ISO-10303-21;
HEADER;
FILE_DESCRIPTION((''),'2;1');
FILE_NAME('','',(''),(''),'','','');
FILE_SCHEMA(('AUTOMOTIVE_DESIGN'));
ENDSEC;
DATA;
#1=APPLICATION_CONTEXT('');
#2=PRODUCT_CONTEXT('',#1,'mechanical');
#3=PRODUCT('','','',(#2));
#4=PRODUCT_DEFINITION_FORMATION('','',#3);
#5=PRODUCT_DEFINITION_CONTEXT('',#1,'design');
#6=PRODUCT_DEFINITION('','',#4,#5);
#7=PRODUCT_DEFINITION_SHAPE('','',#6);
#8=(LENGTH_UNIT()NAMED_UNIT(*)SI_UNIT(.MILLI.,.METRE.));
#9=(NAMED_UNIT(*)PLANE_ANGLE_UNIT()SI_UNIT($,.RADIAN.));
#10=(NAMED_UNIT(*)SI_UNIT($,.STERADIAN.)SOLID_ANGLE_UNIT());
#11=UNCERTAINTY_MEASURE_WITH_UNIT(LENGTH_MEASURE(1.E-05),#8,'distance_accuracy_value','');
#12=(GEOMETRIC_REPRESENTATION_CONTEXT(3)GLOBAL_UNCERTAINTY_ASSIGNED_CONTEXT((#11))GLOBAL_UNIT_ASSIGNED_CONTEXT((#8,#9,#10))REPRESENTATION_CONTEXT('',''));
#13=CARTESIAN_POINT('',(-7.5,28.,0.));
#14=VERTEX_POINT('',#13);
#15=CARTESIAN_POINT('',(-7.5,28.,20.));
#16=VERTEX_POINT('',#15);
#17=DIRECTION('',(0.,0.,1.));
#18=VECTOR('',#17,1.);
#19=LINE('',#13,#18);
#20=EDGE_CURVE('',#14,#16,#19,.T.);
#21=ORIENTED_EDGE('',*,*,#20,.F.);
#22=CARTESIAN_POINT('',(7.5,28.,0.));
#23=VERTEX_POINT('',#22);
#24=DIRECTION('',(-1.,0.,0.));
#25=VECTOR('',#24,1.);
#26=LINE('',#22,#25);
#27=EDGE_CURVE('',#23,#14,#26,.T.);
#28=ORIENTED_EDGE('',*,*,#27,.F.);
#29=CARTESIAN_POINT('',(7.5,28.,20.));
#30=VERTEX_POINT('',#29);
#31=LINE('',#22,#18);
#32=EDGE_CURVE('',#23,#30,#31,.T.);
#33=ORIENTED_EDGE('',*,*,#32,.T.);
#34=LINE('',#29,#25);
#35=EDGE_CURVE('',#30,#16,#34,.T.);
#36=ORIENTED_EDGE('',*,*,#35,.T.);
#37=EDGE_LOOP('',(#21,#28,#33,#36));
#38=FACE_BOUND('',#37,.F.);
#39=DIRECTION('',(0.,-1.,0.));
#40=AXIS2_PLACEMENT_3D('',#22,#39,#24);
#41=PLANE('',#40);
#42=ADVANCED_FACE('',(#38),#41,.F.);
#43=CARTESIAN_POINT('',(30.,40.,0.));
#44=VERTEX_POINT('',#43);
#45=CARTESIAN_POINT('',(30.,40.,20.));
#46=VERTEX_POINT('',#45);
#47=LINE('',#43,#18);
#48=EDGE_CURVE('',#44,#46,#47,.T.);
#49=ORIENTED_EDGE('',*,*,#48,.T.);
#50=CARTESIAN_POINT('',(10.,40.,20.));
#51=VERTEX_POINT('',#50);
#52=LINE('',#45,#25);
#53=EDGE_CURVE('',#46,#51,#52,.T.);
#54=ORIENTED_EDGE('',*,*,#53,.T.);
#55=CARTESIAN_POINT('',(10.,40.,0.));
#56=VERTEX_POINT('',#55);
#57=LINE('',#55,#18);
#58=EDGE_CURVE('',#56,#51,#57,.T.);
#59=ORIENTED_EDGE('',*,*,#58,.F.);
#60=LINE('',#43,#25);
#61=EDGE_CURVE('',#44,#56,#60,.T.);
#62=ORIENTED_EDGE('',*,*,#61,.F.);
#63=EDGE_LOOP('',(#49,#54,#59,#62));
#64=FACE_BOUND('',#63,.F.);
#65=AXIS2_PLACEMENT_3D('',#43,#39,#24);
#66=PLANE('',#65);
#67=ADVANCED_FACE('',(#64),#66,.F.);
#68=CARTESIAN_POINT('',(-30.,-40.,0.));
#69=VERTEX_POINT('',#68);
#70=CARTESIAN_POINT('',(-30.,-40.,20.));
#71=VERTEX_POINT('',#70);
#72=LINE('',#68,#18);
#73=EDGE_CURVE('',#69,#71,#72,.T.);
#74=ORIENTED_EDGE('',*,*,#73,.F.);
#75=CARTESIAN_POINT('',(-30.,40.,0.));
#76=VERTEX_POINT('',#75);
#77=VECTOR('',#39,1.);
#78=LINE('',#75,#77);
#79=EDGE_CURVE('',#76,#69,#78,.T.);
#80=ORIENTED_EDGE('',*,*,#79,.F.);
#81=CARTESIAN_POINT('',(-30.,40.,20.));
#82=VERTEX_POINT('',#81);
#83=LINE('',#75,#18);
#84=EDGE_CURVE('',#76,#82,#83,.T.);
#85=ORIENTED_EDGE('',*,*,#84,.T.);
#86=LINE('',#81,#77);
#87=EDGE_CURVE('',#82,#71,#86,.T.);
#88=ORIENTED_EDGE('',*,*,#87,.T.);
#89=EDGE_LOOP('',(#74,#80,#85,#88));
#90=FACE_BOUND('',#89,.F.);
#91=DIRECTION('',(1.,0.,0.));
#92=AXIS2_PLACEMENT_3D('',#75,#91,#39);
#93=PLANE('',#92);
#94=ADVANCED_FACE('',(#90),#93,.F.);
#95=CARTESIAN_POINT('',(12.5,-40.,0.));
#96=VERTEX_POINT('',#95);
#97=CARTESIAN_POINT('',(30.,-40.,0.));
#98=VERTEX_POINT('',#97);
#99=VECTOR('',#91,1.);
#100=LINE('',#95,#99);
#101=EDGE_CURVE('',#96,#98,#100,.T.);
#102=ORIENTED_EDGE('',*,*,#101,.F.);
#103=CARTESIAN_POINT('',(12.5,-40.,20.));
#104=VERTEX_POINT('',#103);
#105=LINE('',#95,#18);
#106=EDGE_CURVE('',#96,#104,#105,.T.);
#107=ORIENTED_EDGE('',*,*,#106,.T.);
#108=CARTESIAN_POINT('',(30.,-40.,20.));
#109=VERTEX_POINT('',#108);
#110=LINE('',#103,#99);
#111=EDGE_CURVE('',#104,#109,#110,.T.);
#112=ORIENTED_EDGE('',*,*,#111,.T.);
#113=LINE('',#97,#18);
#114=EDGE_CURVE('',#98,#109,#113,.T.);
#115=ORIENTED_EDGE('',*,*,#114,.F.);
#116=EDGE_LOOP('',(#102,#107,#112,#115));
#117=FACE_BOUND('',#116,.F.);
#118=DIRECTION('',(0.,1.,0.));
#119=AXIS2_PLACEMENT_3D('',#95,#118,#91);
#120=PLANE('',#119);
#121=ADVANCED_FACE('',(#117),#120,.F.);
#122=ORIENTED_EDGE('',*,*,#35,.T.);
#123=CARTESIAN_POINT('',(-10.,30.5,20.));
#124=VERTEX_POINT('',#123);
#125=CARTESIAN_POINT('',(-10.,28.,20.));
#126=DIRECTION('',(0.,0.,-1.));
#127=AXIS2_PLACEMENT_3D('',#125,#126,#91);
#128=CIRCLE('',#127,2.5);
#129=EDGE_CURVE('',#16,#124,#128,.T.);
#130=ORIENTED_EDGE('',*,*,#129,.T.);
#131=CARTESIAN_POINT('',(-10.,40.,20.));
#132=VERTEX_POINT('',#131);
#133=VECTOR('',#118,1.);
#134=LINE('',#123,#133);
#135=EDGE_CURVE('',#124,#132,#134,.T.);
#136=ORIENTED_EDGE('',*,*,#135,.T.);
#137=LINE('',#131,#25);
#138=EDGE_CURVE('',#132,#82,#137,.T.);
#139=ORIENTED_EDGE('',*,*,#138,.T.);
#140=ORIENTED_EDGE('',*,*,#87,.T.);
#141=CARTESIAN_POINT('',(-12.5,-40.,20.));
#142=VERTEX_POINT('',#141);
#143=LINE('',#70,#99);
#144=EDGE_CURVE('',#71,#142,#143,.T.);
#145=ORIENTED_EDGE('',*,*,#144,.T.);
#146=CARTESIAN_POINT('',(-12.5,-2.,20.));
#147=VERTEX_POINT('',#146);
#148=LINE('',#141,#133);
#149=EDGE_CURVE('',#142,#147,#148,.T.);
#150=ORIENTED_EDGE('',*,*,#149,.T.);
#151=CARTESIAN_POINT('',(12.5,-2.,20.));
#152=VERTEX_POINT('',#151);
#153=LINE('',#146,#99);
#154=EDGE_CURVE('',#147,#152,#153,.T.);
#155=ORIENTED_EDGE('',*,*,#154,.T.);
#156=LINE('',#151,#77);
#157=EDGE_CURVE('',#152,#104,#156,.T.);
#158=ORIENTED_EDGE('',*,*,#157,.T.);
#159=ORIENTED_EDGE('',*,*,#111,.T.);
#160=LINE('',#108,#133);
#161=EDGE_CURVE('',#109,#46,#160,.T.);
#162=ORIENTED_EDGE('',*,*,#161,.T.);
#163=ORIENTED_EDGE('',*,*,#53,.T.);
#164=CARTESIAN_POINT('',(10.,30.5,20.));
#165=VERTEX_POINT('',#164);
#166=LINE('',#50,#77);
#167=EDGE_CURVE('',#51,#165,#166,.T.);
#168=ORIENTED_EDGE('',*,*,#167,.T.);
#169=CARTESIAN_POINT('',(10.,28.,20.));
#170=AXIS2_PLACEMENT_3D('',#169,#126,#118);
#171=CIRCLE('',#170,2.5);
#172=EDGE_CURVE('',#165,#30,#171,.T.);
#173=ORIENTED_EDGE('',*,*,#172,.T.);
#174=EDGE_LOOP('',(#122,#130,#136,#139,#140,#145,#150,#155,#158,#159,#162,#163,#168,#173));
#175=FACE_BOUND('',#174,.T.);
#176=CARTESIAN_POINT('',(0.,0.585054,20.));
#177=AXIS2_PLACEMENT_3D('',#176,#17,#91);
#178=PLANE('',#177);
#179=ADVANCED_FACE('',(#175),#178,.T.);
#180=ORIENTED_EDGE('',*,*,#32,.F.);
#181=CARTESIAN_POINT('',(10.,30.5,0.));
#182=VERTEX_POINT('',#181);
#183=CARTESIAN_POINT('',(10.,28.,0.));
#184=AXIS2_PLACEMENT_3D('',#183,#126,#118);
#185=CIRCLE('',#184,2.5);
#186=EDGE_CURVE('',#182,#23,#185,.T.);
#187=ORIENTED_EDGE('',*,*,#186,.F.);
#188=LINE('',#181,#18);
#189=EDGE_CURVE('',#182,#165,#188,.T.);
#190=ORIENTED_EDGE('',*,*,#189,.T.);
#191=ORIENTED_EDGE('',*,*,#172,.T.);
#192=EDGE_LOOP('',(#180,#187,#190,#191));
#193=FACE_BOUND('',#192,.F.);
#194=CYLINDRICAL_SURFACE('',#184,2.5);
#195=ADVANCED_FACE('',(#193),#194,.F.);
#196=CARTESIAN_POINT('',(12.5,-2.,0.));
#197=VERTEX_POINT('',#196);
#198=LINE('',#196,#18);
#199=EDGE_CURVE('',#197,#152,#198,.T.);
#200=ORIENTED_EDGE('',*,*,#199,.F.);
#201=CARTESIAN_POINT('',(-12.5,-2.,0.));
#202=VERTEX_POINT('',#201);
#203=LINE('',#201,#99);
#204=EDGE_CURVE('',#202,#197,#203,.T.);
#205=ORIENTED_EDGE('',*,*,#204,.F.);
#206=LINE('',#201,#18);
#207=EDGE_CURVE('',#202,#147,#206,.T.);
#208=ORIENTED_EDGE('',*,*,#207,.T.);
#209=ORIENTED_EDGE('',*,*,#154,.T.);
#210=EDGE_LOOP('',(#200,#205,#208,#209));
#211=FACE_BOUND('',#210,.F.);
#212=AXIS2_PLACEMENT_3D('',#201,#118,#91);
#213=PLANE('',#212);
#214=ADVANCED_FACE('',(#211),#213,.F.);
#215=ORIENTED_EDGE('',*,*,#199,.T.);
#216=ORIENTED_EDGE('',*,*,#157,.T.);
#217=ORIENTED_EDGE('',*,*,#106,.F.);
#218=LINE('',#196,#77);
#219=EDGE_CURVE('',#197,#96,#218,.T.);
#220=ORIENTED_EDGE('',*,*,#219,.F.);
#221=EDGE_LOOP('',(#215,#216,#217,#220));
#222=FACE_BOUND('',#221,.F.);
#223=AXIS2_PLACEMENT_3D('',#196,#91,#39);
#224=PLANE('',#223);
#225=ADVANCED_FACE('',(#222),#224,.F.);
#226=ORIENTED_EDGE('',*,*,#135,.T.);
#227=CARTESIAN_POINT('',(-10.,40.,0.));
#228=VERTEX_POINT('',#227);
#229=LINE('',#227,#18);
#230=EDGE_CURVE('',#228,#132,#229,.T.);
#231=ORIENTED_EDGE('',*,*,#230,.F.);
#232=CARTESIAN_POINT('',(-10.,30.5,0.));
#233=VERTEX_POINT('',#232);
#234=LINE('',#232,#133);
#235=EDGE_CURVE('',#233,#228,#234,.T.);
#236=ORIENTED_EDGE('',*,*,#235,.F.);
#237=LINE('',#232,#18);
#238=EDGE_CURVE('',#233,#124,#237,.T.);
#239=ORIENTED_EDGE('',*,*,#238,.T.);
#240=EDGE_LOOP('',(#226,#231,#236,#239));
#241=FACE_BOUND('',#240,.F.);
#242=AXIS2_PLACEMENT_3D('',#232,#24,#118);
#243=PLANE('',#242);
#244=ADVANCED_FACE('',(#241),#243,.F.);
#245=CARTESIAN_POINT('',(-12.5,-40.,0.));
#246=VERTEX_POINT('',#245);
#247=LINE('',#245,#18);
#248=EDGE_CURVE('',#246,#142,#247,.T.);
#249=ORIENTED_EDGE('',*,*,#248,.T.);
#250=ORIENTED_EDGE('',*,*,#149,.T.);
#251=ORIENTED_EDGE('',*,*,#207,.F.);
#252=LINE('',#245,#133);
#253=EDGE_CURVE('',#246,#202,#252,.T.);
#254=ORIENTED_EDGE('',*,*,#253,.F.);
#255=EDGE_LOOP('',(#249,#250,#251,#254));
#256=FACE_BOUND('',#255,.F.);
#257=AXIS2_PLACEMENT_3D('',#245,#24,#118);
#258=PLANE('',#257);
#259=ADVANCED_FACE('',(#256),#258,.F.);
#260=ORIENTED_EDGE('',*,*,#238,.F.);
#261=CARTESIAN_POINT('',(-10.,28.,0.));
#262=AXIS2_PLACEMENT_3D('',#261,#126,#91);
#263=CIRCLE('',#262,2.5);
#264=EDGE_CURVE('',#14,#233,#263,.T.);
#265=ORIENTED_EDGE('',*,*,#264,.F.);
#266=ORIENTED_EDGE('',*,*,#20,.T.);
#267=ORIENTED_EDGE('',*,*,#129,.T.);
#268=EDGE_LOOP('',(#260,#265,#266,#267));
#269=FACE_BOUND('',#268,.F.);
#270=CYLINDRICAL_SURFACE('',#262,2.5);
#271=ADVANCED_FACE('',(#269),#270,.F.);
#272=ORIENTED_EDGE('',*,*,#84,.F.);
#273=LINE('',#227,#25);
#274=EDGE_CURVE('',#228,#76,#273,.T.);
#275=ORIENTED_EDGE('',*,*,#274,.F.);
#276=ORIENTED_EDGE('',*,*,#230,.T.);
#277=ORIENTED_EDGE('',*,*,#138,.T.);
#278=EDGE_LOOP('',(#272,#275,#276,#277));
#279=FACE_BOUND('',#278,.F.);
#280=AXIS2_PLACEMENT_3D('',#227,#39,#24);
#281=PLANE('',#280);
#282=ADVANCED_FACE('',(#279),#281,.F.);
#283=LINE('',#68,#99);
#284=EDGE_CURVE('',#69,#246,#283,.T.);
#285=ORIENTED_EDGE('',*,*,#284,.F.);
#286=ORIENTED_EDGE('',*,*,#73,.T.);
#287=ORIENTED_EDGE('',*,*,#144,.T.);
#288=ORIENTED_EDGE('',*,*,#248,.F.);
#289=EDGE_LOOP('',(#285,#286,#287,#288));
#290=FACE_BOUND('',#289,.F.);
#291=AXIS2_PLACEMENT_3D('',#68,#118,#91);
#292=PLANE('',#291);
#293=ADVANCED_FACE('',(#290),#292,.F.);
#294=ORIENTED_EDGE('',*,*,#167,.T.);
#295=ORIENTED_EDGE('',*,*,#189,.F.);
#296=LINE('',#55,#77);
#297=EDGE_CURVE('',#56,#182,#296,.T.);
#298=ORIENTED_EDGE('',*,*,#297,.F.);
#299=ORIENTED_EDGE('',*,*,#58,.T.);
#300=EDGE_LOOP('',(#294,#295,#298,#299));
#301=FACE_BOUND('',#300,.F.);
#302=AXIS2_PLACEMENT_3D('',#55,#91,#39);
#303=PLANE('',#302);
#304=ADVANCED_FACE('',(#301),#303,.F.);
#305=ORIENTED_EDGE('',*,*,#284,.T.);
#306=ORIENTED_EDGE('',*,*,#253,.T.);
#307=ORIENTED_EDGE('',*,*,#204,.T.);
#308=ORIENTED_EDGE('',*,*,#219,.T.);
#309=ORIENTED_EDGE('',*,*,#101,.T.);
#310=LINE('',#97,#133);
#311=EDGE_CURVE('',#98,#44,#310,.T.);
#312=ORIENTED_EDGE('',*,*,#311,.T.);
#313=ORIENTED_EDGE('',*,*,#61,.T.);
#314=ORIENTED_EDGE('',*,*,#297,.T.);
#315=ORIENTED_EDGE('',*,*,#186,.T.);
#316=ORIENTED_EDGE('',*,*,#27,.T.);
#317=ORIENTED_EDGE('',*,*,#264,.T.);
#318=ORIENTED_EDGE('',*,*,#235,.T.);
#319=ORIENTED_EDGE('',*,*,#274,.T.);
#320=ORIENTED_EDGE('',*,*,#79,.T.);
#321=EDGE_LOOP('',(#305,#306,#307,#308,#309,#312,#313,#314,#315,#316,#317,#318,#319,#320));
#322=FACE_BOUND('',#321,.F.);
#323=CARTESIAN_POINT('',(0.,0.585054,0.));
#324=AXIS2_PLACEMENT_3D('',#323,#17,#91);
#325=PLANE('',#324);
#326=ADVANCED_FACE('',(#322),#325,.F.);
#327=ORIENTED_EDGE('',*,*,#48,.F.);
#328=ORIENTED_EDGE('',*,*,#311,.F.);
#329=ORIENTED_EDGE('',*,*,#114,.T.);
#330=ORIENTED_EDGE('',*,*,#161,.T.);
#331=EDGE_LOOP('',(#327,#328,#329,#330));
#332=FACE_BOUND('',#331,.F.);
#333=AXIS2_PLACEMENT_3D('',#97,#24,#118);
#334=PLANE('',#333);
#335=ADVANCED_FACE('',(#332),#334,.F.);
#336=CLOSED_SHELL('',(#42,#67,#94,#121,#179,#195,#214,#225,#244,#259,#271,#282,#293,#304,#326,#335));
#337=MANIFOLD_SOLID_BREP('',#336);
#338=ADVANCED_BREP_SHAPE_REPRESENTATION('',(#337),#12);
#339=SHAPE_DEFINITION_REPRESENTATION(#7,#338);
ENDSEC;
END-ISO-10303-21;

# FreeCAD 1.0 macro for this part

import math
import FreeCAD as App
import Part
import Sketcher
from FreeCAD import Vector
Q = App.Units.Quantity

doc = App.newDocument("Part")
body = doc.addObject("PartDesign::Body", "Body")

# Sketch on XY plane
sketch1 = doc.addObject("Sketcher::SketchObject", "Sketch")
body.addObject(sketch1)
sketch1.AttachmentSupport = (doc.XY_Plane, [""])
sketch1.MapMode = "FlatFace"
sketch1.addGeometry([
    Part.LineSegment(Vector(12.5, -40, 0), Vector(30, -40, 0)),  # 0
    Part.LineSegment(Vector(30, -40, 0), Vector(30, 40, 0)),  # 1
    Part.LineSegment(Vector(30, 40, 0), Vector(10, 40, 0)),  # 2
    Part.LineSegment(Vector(10, 40, 0), Vector(10, 30.5, 0)),  # 3
    Part.ArcOfCircle(Part.Circle(Vector(10, 28, 0), Vector(0, 0, 1), 2.5), math.radians(180), math.radians(450)),  # 4
    Part.LineSegment(Vector(7.5, 28, 0), Vector(-7.5, 28, 0)),  # 5
    Part.ArcOfCircle(Part.Circle(Vector(-10, 28, 0), Vector(0, 0, 1), 2.5), math.radians(90), math.radians(360)),  # 6
    Part.LineSegment(Vector(-10, 30.5, 0), Vector(-10, 40, 0)),  # 7
    Part.LineSegment(Vector(-10, 40, 0), Vector(-30, 40, 0)),  # 8
    Part.LineSegment(Vector(-30, 40, 0), Vector(-30, -40, 0)),  # 9
    Part.LineSegment(Vector(-30, -40, 0), Vector(-12.5, -40, 0)),  # 10
    Part.LineSegment(Vector(-12.5, -40, 0), Vector(-12.5, -2, 0)),  # 11
    Part.LineSegment(Vector(-12.5, -2, 0), Vector(12.5, -2, 0)),  # 12
    Part.LineSegment(Vector(12.5, -2, 0), Vector(12.5, -40, 0)),  # 13
], False)
sketch1.addConstraint([
    Sketcher.Constraint("Coincident", 0, 2, 1, 1),
    Sketcher.Constraint("Coincident", 1, 2, 2, 1),
    Sketcher.Constraint("Coincident", 2, 2, 3, 1),
    Sketcher.Constraint("Coincident", 3, 2, 4, 2),
    Sketcher.Constraint("Coincident", 4, 1, 5, 1),
    Sketcher.Constraint("Coincident", 5, 2, 6, 2),
    Sketcher.Constraint("Coincident", 6, 1, 7, 1),
    Sketcher.Constraint("Coincident", 7, 2, 8, 1),
    Sketcher.Constraint("Coincident", 8, 2, 9, 1),
    Sketcher.Constraint("Coincident", 9, 2, 10, 1),
    Sketcher.Constraint("Coincident", 10, 2, 11, 1),
    Sketcher.Constraint("Coincident", 11, 2, 12, 1),
    Sketcher.Constraint("Coincident", 12, 2, 13, 1),
    Sketcher.Constraint("Coincident", 13, 2, 0, 1),
    Sketcher.Constraint("Horizontal", 0),
    Sketcher.Constraint("Vertical", 1),
    Sketcher.Constraint("Horizontal", 2),
    Sketcher.Constraint("Vertical", 3),
    Sketcher.Constraint("Horizontal", 5),
    Sketcher.Constraint("Vertical", 7),
    Sketcher.Constraint("Horizontal", 8),
    Sketcher.Constraint("Vertical", 9),
    Sketcher.Constraint("Horizontal", 10),
    Sketcher.Constraint("Vertical", 11),
    Sketcher.Constraint("Horizontal", 12),
    Sketcher.Constraint("Vertical", 13),
    Sketcher.Constraint("Equal", 4, 6),
    Sketcher.Constraint("Symmetric", 0, 2, 8, 2, -1, 1),
    Sketcher.Constraint("Symmetric", 4, 3, 6, 3, -2),
    Sketcher.Constraint("Symmetric", 2, 2, 7, 2, -2),
    Sketcher.Constraint("Symmetric", 10, 2, 13, 2, -2),
    Sketcher.Constraint("Horizontal", 6, 3, 4, 1),
    Sketcher.Constraint("Vertical", 4, 3, 2, 2),
    Sketcher.Constraint("Radius", 4, Q("2.5 mm")),
    Sketcher.Constraint("DistanceX", 2, 2, 2, 1, Q("20 mm")),
    Sketcher.Constraint("DistanceX", 5, 2, 5, 1, Q("15 mm")),
    Sketcher.Constraint("DistanceX", 12, 1, 12, 2, Q("25 mm")),
    Sketcher.Constraint("DistanceY", 1, 1, 1, 2, Q("80 mm")),
    Sketcher.Constraint("DistanceY", 11, 1, 11, 2, Q("38 mm")),
    Sketcher.Constraint("DistanceY", 3, 2, 3, 1, Q("9.5 mm")),
])
pad1 = doc.addObject("PartDesign::Pad", "Pad")
body.addObject(pad1)
pad1.Profile = sketch1
pad1.Length = 20

doc.recompute()
